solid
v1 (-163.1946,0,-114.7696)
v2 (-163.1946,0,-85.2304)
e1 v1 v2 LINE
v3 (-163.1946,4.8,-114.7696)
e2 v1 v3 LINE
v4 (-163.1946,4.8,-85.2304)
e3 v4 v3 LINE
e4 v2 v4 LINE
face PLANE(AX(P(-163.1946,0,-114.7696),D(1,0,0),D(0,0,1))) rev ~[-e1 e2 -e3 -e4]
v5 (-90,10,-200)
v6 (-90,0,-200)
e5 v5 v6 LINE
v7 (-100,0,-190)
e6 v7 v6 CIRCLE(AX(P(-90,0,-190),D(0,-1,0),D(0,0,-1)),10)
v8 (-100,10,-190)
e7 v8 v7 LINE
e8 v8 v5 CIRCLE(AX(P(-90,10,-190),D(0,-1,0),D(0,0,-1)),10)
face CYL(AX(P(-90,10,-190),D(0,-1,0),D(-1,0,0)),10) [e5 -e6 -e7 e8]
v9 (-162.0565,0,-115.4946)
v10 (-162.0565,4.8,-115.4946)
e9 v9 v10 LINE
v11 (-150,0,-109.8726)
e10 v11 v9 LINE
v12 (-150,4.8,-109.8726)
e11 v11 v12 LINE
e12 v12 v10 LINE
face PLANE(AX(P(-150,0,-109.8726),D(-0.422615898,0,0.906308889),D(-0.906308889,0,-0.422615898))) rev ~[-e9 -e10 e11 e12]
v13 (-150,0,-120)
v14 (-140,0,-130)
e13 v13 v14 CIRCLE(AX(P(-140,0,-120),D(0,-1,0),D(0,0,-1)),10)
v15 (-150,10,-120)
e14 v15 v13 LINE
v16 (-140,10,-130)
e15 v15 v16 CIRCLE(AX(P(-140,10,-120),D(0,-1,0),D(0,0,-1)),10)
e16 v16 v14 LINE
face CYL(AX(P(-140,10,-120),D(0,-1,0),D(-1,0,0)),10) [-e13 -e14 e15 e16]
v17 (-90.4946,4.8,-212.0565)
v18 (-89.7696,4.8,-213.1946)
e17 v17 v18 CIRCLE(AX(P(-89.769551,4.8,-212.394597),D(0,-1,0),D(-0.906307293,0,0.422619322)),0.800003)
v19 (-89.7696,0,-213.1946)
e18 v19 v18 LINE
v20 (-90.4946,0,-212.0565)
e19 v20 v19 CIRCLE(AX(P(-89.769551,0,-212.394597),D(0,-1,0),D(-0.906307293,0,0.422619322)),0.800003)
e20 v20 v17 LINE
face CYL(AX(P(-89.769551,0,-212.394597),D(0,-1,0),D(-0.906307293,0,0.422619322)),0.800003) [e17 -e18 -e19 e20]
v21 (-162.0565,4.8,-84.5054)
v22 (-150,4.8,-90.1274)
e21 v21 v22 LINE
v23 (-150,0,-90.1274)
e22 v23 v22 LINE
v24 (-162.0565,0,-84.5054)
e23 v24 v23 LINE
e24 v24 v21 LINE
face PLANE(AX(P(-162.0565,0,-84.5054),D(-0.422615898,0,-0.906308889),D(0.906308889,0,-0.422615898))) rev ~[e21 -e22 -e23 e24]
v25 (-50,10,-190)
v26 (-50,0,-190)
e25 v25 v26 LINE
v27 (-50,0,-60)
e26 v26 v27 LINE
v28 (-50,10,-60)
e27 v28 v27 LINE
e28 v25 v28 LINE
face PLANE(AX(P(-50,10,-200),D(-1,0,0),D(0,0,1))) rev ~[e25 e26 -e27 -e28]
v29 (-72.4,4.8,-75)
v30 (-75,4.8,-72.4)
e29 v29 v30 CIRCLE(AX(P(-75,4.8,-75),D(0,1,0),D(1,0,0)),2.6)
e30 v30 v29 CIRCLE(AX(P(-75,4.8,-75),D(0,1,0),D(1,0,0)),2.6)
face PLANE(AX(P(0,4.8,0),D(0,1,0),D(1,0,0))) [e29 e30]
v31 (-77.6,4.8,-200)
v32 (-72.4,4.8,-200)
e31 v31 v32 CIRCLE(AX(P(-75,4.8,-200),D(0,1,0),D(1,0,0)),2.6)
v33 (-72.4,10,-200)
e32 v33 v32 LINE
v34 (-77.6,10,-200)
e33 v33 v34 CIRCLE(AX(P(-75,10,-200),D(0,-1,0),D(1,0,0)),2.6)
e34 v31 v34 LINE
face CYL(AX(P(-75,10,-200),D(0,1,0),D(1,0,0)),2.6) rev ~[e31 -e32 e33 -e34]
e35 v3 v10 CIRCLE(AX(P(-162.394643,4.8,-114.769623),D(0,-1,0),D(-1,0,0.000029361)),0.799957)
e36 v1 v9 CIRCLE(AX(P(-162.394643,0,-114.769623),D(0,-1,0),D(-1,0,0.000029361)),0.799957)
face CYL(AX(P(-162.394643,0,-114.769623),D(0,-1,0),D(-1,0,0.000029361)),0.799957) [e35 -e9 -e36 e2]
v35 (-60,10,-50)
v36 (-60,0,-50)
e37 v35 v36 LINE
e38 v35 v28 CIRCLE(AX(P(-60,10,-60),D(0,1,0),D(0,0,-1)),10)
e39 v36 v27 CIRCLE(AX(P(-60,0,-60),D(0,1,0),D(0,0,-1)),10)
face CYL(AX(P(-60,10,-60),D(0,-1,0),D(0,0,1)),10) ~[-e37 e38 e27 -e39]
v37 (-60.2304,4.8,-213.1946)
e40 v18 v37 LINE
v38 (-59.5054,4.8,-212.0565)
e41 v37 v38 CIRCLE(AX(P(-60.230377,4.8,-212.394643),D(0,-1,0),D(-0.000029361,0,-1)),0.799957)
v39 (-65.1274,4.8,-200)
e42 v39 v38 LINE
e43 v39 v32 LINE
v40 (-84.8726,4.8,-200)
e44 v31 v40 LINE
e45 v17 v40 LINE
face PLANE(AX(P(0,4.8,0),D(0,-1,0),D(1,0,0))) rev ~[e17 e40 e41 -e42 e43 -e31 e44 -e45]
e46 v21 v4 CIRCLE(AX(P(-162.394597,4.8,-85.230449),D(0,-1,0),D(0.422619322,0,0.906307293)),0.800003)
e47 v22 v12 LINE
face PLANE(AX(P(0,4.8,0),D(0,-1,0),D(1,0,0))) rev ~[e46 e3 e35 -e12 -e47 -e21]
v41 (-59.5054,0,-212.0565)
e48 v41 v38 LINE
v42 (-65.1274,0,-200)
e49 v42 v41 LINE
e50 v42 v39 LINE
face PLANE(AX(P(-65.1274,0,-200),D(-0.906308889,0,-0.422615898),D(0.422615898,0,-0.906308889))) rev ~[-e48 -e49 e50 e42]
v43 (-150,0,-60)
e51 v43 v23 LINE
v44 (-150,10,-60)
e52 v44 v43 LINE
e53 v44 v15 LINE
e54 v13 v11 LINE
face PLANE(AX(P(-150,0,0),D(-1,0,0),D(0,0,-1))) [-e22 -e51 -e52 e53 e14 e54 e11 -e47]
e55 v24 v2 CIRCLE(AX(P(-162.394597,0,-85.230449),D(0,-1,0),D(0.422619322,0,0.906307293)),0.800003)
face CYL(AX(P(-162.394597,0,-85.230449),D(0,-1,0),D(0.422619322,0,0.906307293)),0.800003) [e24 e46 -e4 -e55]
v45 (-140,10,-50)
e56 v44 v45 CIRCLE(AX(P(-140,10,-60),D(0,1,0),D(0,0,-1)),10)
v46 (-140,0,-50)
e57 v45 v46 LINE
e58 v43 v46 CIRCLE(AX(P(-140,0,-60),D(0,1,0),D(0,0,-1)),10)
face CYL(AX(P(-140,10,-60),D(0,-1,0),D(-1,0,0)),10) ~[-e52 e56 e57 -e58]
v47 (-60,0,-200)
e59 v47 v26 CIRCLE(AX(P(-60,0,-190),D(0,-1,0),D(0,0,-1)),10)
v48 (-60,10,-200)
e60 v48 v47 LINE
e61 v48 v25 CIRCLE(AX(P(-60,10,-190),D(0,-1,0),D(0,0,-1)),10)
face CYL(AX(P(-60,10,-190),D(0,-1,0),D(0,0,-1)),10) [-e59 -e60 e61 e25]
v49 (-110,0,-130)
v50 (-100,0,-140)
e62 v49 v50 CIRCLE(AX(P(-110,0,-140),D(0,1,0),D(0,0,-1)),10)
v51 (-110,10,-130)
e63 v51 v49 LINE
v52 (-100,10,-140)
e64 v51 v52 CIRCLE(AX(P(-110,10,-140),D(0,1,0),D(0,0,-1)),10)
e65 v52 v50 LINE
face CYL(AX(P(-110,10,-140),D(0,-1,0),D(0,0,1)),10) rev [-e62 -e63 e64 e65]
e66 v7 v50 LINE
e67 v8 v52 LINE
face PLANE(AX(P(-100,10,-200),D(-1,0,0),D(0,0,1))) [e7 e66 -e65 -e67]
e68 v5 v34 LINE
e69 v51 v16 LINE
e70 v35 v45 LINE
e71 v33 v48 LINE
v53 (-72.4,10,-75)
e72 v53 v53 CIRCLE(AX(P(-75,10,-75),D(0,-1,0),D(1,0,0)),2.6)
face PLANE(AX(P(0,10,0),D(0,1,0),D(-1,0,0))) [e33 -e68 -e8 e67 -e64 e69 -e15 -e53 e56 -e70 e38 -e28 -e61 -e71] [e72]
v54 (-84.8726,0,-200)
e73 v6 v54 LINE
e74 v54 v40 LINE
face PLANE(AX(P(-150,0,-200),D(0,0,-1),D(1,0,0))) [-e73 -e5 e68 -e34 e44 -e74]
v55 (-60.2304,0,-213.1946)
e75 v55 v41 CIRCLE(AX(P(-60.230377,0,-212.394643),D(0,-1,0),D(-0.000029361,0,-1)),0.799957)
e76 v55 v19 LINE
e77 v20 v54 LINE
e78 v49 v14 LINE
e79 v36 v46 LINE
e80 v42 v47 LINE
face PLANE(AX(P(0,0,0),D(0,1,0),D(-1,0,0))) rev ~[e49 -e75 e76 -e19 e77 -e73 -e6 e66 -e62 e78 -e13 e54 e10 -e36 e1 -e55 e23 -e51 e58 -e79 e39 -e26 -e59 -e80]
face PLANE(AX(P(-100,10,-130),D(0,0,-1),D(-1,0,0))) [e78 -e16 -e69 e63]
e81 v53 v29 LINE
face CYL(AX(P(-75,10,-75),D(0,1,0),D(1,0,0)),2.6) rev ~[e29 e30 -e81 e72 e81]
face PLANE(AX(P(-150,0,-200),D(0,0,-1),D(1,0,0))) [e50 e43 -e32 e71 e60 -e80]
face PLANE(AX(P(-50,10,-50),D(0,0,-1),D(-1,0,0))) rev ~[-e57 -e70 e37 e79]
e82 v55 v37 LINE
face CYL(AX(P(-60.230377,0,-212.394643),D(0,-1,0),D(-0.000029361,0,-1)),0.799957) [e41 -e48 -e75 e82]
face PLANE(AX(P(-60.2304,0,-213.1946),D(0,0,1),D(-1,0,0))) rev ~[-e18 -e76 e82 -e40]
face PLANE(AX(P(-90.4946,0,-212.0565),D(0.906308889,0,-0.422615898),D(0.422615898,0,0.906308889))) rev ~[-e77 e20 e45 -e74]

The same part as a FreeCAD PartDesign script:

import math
import FreeCAD as App
import Part
import Sketcher
from FreeCAD import Vector
Q = App.Units.Quantity


def edges_at(feature, points):
    """Names of the edges that pass closest to the given points."""
    edges = feature.Shape.Edges
    near = lambda p: min(range(len(edges)), key=lambda i: edges[i].distToShape(Part.Vertex(*p))[0])
    return sorted({f"Edge{near(p) + 1}" for p in points})


def add_polygon(sketch, points):
    """Adds a closed chain of lines whose ends are joined by coincident constraints."""
    first, n = sketch.GeometryCount, len(points)
    for a, b in zip(points, points[1:] + points[:1]):
        sketch.addGeometry(Part.LineSegment(App.Vector(*a, 0), App.Vector(*b, 0)), False)
    for i in range(n):
        sketch.addConstraint(Sketcher.Constraint("Coincident", first + i, 2, first + (i + 1) % n, 1))

doc = App.newDocument("Part")
params = doc.addObject("Spreadsheet::Sheet", "Params")
for row, (alias, value) in enumerate([
    ("sketch1_width", "150 mm"),
    ("sketch1_height", "200 mm"),
    ("pad1_length", "10 mm"),
    ("sketch2_radius", "0.8 mm"),
    ("pad2_length", "4.8 mm"),
    ("sketch3_diameter", "5.2 mm"),
    ("pocket1_length", "5.2 mm"),
    ("sketch4_width", "50 mm"),
    ("sketch4_height", "70 mm"),
    ("pocket2_length", "10 mm"),
    ("fillet_radius", "10 mm"),
], start=1):
    params.set(f"A{row}", alias)
    params.set(f"B{row}", "=" + value)
    params.setAlias(f"B{row}", alias)

body = doc.addObject("PartDesign::Body", "Body")

# Sketch on XZ plane
sketch1 = body.newObject("Sketcher::SketchObject", "Sketch")
sketch1.AttachmentSupport = (doc.getObject("XZ_Plane"), [""])
sketch1.MapMode = "FlatFace"
add_polygon(sketch1, [(-150, 0), (0, 0), (0, -200), (-150, -200)])  # lines 0-3
sketch1.addConstraint([
    Sketcher.Constraint("Horizontal", 0),
    Sketcher.Constraint("Vertical", 1),
    Sketcher.Constraint("Horizontal", 2),
    Sketcher.Constraint("Vertical", 3),
    Sketcher.Constraint("Coincident", 0, 2, -1, 1),
    Sketcher.Constraint("DistanceX", 0, 1, 0, 2, Q("150 mm")),
    Sketcher.Constraint("DistanceY", 1, 2, 1, 1, Q("200 mm")),
])
sketch1.setExpression("Constraints[9]", "Params.sketch1_width")
sketch1.setExpression("Constraints[10]", "Params.sketch1_height")
pad1 = body.newObject("PartDesign::Pad", "Pad")
pad1.Profile = sketch1
pad1.setExpression("Length", "Params.pad1_length")
pad1.Reversed = True

# Sketch on XZ plane
sketch2 = body.newObject("Sketcher::SketchObject", "Sketch001")
sketch2.AttachmentSupport = (doc.getObject("XZ_Plane"), [""])
sketch2.MapMode = "FlatFace"
sketch2.addGeometry([
    Part.LineSegment(Vector(-59.5054, -212.0565, 0), Vector(-65.1274, -200, 0)),  # 0
    Part.LineSegment(Vector(-65.1274, -200, 0), Vector(-84.8726, -200, 0)),  # 1
    Part.LineSegment(Vector(-84.8726, -200, 0), Vector(-90.4946, -212.0565, 0)),  # 2
    Part.ArcOfCircle(Part.Circle(Vector(-89.7696, -212.3946, 0), Vector(0, 0, 1), 0.79996), math.radians(154.998251), math.radians(270)),  # 3
    Part.LineSegment(Vector(-89.7696, -213.1946, 0), Vector(-60.2304, -213.1946, 0)),  # 4
    Part.ArcOfCircle(Part.Circle(Vector(-60.2304, -212.3946, 0), Vector(0, 0, 1), 0.8), math.radians(-90), math.radians(25.001749)),  # 5
    Part.LineSegment(Vector(-162.0565, -115.4946, 0), Vector(-150, -109.8726, 0)),  # 6
    Part.LineSegment(Vector(-150, -109.8726, 0), Vector(-150, -90.1274, 0)),  # 7
    Part.LineSegment(Vector(-150, -90.1274, 0), Vector(-162.0565, -84.5054, 0)),  # 8
    Part.ArcOfCircle(Part.Circle(Vector(-162.3946, -85.2304, 0), Vector(0, 0, 1), 0.79996), math.radians(64.998251), math.radians(180)),  # 9
    Part.LineSegment(Vector(-163.1946, -85.2304, 0), Vector(-163.1946, -114.7696, 0)),  # 10
    Part.ArcOfCircle(Part.Circle(Vector(-162.3946, -114.7696, 0), Vector(0, 0, 1), 0.8), math.radians(180), math.radians(295.001749)),  # 11
], False)
sketch2.addConstraint([
    Sketcher.Constraint("Coincident", 0, 2, 1, 1),
    Sketcher.Constraint("Coincident", 1, 2, 2, 1),
    Sketcher.Constraint("Tangent", 2, 2, 3, 1),
    Sketcher.Constraint("Tangent", 3, 2, 4, 1),
    Sketcher.Constraint("Tangent", 4, 2, 5, 1),
    Sketcher.Constraint("Tangent", 5, 2, 0, 1),
    Sketcher.Constraint("Coincident", 6, 2, 7, 1),
    Sketcher.Constraint("Coincident", 7, 2, 8, 1),
    Sketcher.Constraint("Tangent", 8, 2, 9, 1),
    Sketcher.Constraint("Tangent", 9, 2, 10, 1),
    Sketcher.Constraint("Tangent", 10, 2, 11, 1),
    Sketcher.Constraint("Tangent", 11, 2, 6, 1),
    Sketcher.Constraint("Horizontal", 1),
    Sketcher.Constraint("Horizontal", 4),
    Sketcher.Constraint("Vertical", 7),
    Sketcher.Constraint("Vertical", 10),
    Sketcher.Constraint("Equal", 3, 5),
    Sketcher.Constraint("Equal", 5, 9),
    Sketcher.Constraint("Equal", 9, 11),
    Sketcher.Constraint("Perpendicular", 0, 6),
    Sketcher.Constraint("Perpendicular", 2, 8),
    Sketcher.Constraint("Horizontal", 2, 2, 5, 2),
    Sketcher.Constraint("Equal", 1, 7),
    Sketcher.Constraint("Equal", 4, 10),
    Sketcher.Constraint("Radius", 3, Q("0.8 mm")),
    Sketcher.Constraint("Angle", 0, Q("114.9999 deg")),
    Sketcher.Constraint("DistanceY", 0, 2, -1, 1, Q("200 mm")),
    Sketcher.Constraint("DistanceX", 6, 2, -1, 1, Q("150 mm")),
    Sketcher.Constraint("DistanceX", 11, 3, 2, 2, Q("71.9 mm")),
    Sketcher.Constraint("DistanceX", 1, 2, 1, 1, Q("19.7452 mm")),
    Sketcher.Constraint("DistanceX", 4, 1, 4, 2, Q("29.5392 mm")),
    Sketcher.Constraint("DistanceY", 3, 3, 11, 3, Q("97.625 mm")),
])
sketch2.setExpression("Constraints[24]", "Params.sketch2_radius")
pad2 = body.newObject("PartDesign::Pad", "Pad001")
pad2.Profile = sketch2
pad2.setExpression("Length", "Params.pad2_length")
pad2.Reversed = True

# Sketch on XZ plane
sketch3 = body.newObject("Sketcher::SketchObject", "Sketch002")
sketch3.AttachmentSupport = (doc.getObject("XZ_Plane"), [""])
sketch3.MapMode = "FlatFace"
sketch3.AttachmentOffset = App.Placement(Vector(0, 0, -10), App.Rotation())
sketch3.addGeometry([
    Part.Circle(Vector(-75, -75, 0), Vector(0, 0, 1), 2.6),
    Part.Circle(Vector(-75, -200, 0), Vector(0, 0, 1), 2.6),
], False)
sketch3.addConstraint([
    Sketcher.Constraint("Equal", 0, 1),
    Sketcher.Constraint("Vertical", 0, 3, 1, 3),
    Sketcher.Constraint("DistanceX", 0, 3, -1, 1, Q("75 mm")),
    Sketcher.Constraint("DistanceY", 0, 3, -1, 1, Q("75 mm")),
    Sketcher.Constraint("Diameter", 0, Q("5.2 mm")),
    Sketcher.Constraint("DistanceY", 1, 3, -1, 1, Q("200 mm")),
])
sketch3.setExpression("Constraints[4]", "Params.sketch3_diameter")
pocket1 = body.newObject("PartDesign::Pocket", "Pocket")
pocket1.Profile = sketch3
pocket1.setExpression("Length", "Params.pocket1_length")
pocket1.Reversed = True

# Sketch on XZ plane
sketch4 = body.newObject("Sketcher::SketchObject", "Sketch003")
sketch4.AttachmentSupport = (doc.getObject("XZ_Plane"), [""])
sketch4.MapMode = "FlatFace"
sketch4.AttachmentOffset = App.Placement(Vector(0, 0, -10), App.Rotation())
add_polygon(sketch4, [(0, 0), (0, -200), (-50, -200), (-50, -50), (-150, -50), (-150, 0)])  # lines 0-5
add_polygon(sketch4, [(-100, -200), (-150, -200), (-150, -130), (-100, -130)])  # lines 6-9
sketch4.addConstraint([
    Sketcher.Constraint("Vertical", 0),
    Sketcher.Constraint("Horizontal", 1),
    Sketcher.Constraint("Vertical", 2),
    Sketcher.Constraint("Horizontal", 3),
    Sketcher.Constraint("Vertical", 4),
    Sketcher.Constraint("Horizontal", 5),
    Sketcher.Constraint("Horizontal", 6),
    Sketcher.Constraint("Vertical", 7),
    Sketcher.Constraint("Horizontal", 8),
    Sketcher.Constraint("Vertical", 9),
    Sketcher.Constraint("Coincident", 5, 2, -1, 1),
    Sketcher.Constraint("Horizontal", 1, 2, 6, 2),
    Sketcher.Constraint("Vertical", 4, 2, 6, 2),
    Sketcher.Constraint("Equal", 1, 6),
    Sketcher.Constraint("Equal", 5, 2),
    Sketcher.Constraint("Equal", 8, 4),
    Sketcher.Constraint("DistanceX", 1, 2, 1, 1, Q("50 mm")),
    Sketcher.Constraint("DistanceY", 7, 1, 7, 2, Q("70 mm")),
    Sketcher.Constraint("DistanceX", 8, 2, 1, 2, Q("50 mm")),
])
sketch4.setExpression("Constraints[26]", "Params.sketch4_width")
sketch4.setExpression("Constraints[27]", "Params.sketch4_height")
pocket2 = body.newObject("PartDesign::Pocket", "Pocket001")
pocket2.Profile = sketch4
pocket2.setExpression("Length", "Params.pocket2_length")
pocket2.Reversed = True
doc.recompute()

fillet = body.newObject("PartDesign::Fillet", "Fillet")
fillet.Base = (pocket2, edges_at(pocket2, [
    (-50, 5, -200),
    (-100, 5, -200),
    (-150, 5, -130),
    (-100, 5, -130),
    (-50, 5, -50),
    (-150, 5, -50),
]))
fillet.setExpression("Radius", "Params.fillet_radius")

doc.recompute()
